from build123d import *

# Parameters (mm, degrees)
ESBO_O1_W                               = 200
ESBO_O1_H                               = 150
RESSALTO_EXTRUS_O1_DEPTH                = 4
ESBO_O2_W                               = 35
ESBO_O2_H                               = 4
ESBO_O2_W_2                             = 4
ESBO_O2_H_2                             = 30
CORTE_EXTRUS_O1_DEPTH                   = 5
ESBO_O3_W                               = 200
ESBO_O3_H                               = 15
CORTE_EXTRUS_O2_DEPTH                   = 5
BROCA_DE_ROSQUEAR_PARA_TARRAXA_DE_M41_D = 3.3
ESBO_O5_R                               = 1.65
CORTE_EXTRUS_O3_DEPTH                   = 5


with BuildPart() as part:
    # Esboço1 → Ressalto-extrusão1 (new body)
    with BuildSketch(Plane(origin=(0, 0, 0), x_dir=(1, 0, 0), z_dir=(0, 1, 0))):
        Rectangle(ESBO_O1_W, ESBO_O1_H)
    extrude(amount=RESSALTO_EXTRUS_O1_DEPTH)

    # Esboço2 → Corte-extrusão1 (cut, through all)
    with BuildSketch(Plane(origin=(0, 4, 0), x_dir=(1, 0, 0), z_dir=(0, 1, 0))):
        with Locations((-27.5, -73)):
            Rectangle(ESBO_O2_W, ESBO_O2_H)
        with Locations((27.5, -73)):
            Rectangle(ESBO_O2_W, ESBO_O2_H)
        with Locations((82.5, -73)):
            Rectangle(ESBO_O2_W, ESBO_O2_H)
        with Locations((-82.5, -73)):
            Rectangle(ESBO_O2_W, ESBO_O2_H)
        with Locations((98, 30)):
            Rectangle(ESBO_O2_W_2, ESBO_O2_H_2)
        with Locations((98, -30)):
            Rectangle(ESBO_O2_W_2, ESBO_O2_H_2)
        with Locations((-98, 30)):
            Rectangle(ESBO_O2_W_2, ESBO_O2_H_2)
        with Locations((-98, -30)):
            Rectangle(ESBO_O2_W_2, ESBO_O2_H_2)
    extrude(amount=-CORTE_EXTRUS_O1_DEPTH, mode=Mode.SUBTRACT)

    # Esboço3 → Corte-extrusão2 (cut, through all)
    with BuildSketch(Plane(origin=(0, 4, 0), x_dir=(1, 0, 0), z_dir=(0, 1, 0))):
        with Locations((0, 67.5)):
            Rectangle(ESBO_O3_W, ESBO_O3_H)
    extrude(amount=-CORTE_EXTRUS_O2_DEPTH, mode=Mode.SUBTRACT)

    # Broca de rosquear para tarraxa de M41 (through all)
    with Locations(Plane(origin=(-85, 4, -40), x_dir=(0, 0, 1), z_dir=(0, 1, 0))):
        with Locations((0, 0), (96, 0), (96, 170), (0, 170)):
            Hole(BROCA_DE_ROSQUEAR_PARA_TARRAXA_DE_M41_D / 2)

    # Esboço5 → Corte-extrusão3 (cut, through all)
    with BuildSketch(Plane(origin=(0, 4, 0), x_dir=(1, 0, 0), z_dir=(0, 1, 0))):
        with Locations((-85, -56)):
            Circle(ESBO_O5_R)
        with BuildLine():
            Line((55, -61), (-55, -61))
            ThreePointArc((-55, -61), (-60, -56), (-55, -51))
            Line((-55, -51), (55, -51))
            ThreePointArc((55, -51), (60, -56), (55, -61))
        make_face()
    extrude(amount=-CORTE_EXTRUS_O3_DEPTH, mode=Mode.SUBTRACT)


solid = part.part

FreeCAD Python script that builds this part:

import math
import FreeCAD as App
import Part
import Sketcher
from FreeCAD import Vector


def add_polygon(sketch, points):
    """Adds a closed chain of lines whose ends are joined by coincident constraints."""
    first, n = sketch.GeometryCount, len(points)
    for a, b in zip(points, points[1:] + points[:1]):
        sketch.addGeometry(Part.LineSegment(App.Vector(*a, 0), App.Vector(*b, 0)), False)
    for i in range(n):
        sketch.addConstraint(Sketcher.Constraint("Coincident", first + i, 2, first + (i + 1) % n, 1))

doc = App.newDocument("Part")
body = doc.addObject("PartDesign::Body", "Body")

sketch1 = doc.addObject("Sketcher::SketchObject", "Sketch")
body.addObject(sketch1)
sketch1.AttachmentSupport = (doc.XZ_Plane, [""])
sketch1.MapMode = "FlatFace"
add_polygon(sketch1, [(-100, -75), (-100, 75), (100, 75), (100, -75)])
sketch1.addConstraint([
    Sketcher.Constraint("Vertical", 0),
    Sketcher.Constraint("Horizontal", 1),
    Sketcher.Constraint("Vertical", 2),
    Sketcher.Constraint("Horizontal", 3),
    Sketcher.Constraint("Symmetric", 0, 2, 2, 2, -1, 1),
    Sketcher.Constraint("DistanceX", 1, 1, 1, 2, 200.0),
    Sketcher.Constraint("DistanceY", 0, 1, 0, 2, 150.0),
])
pad1 = doc.addObject("PartDesign::Pad", "Pad")
body.addObject(pad1)
pad1.Profile = sketch1
pad1.Length = 4
pad1.Reversed = True

sketch2 = doc.addObject("Sketcher::SketchObject", "Sketch001")
body.addObject(sketch2)
sketch2.AttachmentSupport = (doc.XZ_Plane, [""])
sketch2.MapMode = "FlatFace"
sketch2.AttachmentOffset = App.Placement(Vector(0, 0, -4), App.Rotation())
add_polygon(sketch2, [(-45, 71), (-45, 75), (-10, 75), (-10, 71)])
add_polygon(sketch2, [(10, 71), (10, 75), (45, 75), (45, 71)])
add_polygon(sketch2, [(65, 71), (65, 75), (100, 75), (100, 71)])
add_polygon(sketch2, [(-100, 71), (-100, 75), (-65, 75), (-65, 71)])
add_polygon(sketch2, [(96, -45), (96, -15), (100, -15), (100, -45)])
add_polygon(sketch2, [(96, 15), (96, 45), (100, 45), (100, 15)])
add_polygon(sketch2, [(-100, -45), (-100, -15), (-96, -15), (-96, -45)])
add_polygon(sketch2, [(-100, 15), (-100, 45), (-96, 45), (-96, 15)])
sketch2.addConstraint([
    Sketcher.Constraint("Vertical", 0),
    Sketcher.Constraint("Horizontal", 1),
    Sketcher.Constraint("Vertical", 2),
    Sketcher.Constraint("Horizontal", 3),
    Sketcher.Constraint("Vertical", 4),
    Sketcher.Constraint("Horizontal", 5),
    Sketcher.Constraint("Vertical", 6),
    Sketcher.Constraint("Horizontal", 7),
    Sketcher.Constraint("Vertical", 8),
    Sketcher.Constraint("Horizontal", 9),
    Sketcher.Constraint("Vertical", 10),
    Sketcher.Constraint("Horizontal", 11),
    Sketcher.Constraint("Vertical", 12),
    Sketcher.Constraint("Horizontal", 13),
    Sketcher.Constraint("Vertical", 14),
    Sketcher.Constraint("Horizontal", 15),
    Sketcher.Constraint("Vertical", 16),
    Sketcher.Constraint("Horizontal", 17),
    Sketcher.Constraint("Vertical", 18),
    Sketcher.Constraint("Horizontal", 19),
    Sketcher.Constraint("Vertical", 20),
    Sketcher.Constraint("Horizontal", 21),
    Sketcher.Constraint("Vertical", 22),
    Sketcher.Constraint("Horizontal", 23),
    Sketcher.Constraint("Vertical", 24),
    Sketcher.Constraint("Horizontal", 25),
    Sketcher.Constraint("Vertical", 26),
    Sketcher.Constraint("Horizontal", 27),
    Sketcher.Constraint("Vertical", 28),
    Sketcher.Constraint("Horizontal", 29),
    Sketcher.Constraint("Vertical", 30),
    Sketcher.Constraint("Horizontal", 31),
    Sketcher.Constraint("Symmetric", 22, 2, 24, 2, -1, 1),
    Sketcher.Constraint("Symmetric", 20, 2, 26, 2, -1, 1),
    Sketcher.Constraint("Symmetric", 18, 2, 28, 2, -1, 1),
    Sketcher.Constraint("Symmetric", 16, 2, 30, 2, -1, 1),
    Sketcher.Constraint("Symmetric", 1, 2, 4, 2, -2),
    Sketcher.Constraint("Symmetric", 3, 2, 6, 2, -2),
    Sketcher.Constraint("Symmetric", 9, 2, 12, 2, -2),
    Sketcher.Constraint("Symmetric", 11, 2, 14, 2, -2),
    Sketcher.Constraint("Symmetric", 17, 2, 24, 2, -2),
    Sketcher.Constraint("Symmetric", 19, 2, 26, 2, -2),
    Sketcher.Constraint("Horizontal", 5, 2, 8, 2),
    Sketcher.Constraint("Horizontal", 7, 2, 10, 2),
    Sketcher.Constraint("Vertical", 10, 2, 17, 2),
    Sketcher.Constraint("Equal", 7, 9),
    Sketcher.Constraint("Equal", 31, 0),
    Sketcher.Constraint("DistanceX", 1, 1, 1, 2, 35.0),
    Sketcher.Constraint("DistanceX", 17, 1, 17, 2, 4.0),
    Sketcher.Constraint("DistanceY", 16, 1, 16, 2, 30.0),
    Sketcher.Constraint("DistanceX", 0, 2, -1, 1, 45.0),
    Sketcher.Constraint("DistanceY", -1, 1, 0, 2, 75.0),
    Sketcher.Constraint("DistanceX", -1, 1, 8, 2, 65.0),
    Sketcher.Constraint("DistanceY", 16, 2, -1, 1, 15.0),
])
pocket1 = doc.addObject("PartDesign::Pocket", "Pocket")
body.addObject(pocket1)
pocket1.Profile = sketch2
pocket1.Type = "ThroughAll"
pocket1.Reversed = True

sketch3 = doc.addObject("Sketcher::SketchObject", "Sketch002")
body.addObject(sketch3)
sketch3.AttachmentSupport = (doc.XZ_Plane, [""])
sketch3.MapMode = "FlatFace"
sketch3.AttachmentOffset = App.Placement(Vector(0, 0, -4), App.Rotation())
add_polygon(sketch3, [(-100, -75), (-100, -60), (100, -60), (100, -75)])
sketch3.addConstraint([
    Sketcher.Constraint("Vertical", 0),
    Sketcher.Constraint("Horizontal", 1),
    Sketcher.Constraint("Vertical", 2),
    Sketcher.Constraint("Horizontal", 3),
    Sketcher.Constraint("DistanceX", 1, 1, 1, 2, 200.0),
    Sketcher.Constraint("DistanceY", 0, 1, 0, 2, 15.0),
    Sketcher.Constraint("DistanceX", 0, 2, -1, 1, 100.0),
    Sketcher.Constraint("DistanceY", 0, 2, -1, 1, 60.0),
])
pocket2 = doc.addObject("PartDesign::Pocket", "Pocket001")
body.addObject(pocket2)
pocket2.Profile = sketch3
pocket2.Type = "ThroughAll"
pocket2.Reversed = True

sketch4 = doc.addObject("Sketcher::SketchObject", "Sketch003")
body.addObject(sketch4)
sketch4.AttachmentSupport = (doc.XZ_Plane, [""])
sketch4.MapMode = "FlatFace"
sketch4.AttachmentOffset = App.Placement(Vector(0, 0, -4), App.Rotation())
sketch4.addGeometry([
    Part.Circle(Vector(-85, -40, 0), Vector(0, 0, 1), 1.6),
    Part.Circle(Vector(-85, 56, 0), Vector(0, 0, 1), 1.6),
    Part.Circle(Vector(85, 56, 0), Vector(0, 0, 1), 1.6),
    Part.Circle(Vector(85, -40, 0), Vector(0, 0, 1), 1.6),
], False)
sketch4.addConstraint([
    Sketcher.Constraint("Equal", 0, 1),
    Sketcher.Constraint("Equal", 1, 2),
    Sketcher.Constraint("Equal", 2, 3),
    Sketcher.Constraint("Symmetric", 1, 3, 2, 3, -2),
    Sketcher.Constraint("Symmetric", 0, 3, 3, 3, -2),
    Sketcher.Constraint("Vertical", 0, 3, 1, 3),
    Sketcher.Constraint("Diameter", 0, 3.3),
    Sketcher.Constraint("DistanceX", 0, 3, -1, 1, 85.0),
    Sketcher.Constraint("DistanceY", 0, 3, -1, 1, 40.0),
    Sketcher.Constraint("DistanceY", -1, 1, 1, 3, 56.0),
])
doc.recompute()
hole = doc.addObject("PartDesign::Hole", "Hole")
body.addObject(hole)
hole.Profile = sketch4
hole.ThreadType = "None"
hole.Diameter = 3.3
hole.DepthType = "ThroughAll"
hole.Reversed = True

sketch5 = doc.addObject("Sketcher::SketchObject", "Sketch004")
body.addObject(sketch5)
sketch5.AttachmentSupport = (doc.XZ_Plane, [""])
sketch5.MapMode = "FlatFace"
sketch5.AttachmentOffset = App.Placement(Vector(0, 0, -4), App.Rotation())
sketch5.addGeometry([
    Part.Circle(Vector(-85, 56, 0), Vector(0, 0, 1), 1.6),
    Part.LineSegment(Vector(-55, 61, 0), Vector(55, 61, 0)),
    Part.ArcOfCircle(Part.Circle(Vector(55, 56, 0), Vector(0, 0, 1), 5), math.radians(-90), math.radians(90)),
    Part.LineSegment(Vector(55, 51, 0), Vector(-55, 51, 0)),
    Part.ArcOfCircle(Part.Circle(Vector(-55, 56, 0), Vector(0, 0, 1), 5), math.radians(90), math.radians(270)),
], False)
sketch5.addConstraint([
    Sketcher.Constraint("Tangent", 1, 2, 2, 2),
    Sketcher.Constraint("Tangent", 2, 1, 3, 1),
    Sketcher.Constraint("Tangent", 3, 2, 4, 2),
    Sketcher.Constraint("Tangent", 4, 1, 1, 1),
    Sketcher.Constraint("Horizontal", 1),
    Sketcher.Constraint("Horizontal", 3),
    Sketcher.Constraint("Horizontal", 0, 3, 2, 3),
    Sketcher.Constraint("Radius", 2, 5.0),
    Sketcher.Constraint("Diameter", 0, 3.3),
    Sketcher.Constraint("DistanceX", 1, 1, 1, 2, 110.0),
    Sketcher.Constraint("DistanceX", 0, 3, -1, 1, 85.0),
    Sketcher.Constraint("DistanceY", -1, 1, 0, 3, 56.0),
    Sketcher.Constraint("DistanceX", -1, 1, 2, 3, 55.0),
])
pocket3 = doc.addObject("PartDesign::Pocket", "Pocket002")
body.addObject(pocket3)
pocket3.Profile = sketch5
pocket3.Type = "ThroughAll"
pocket3.Reversed = True

doc.recompute()
